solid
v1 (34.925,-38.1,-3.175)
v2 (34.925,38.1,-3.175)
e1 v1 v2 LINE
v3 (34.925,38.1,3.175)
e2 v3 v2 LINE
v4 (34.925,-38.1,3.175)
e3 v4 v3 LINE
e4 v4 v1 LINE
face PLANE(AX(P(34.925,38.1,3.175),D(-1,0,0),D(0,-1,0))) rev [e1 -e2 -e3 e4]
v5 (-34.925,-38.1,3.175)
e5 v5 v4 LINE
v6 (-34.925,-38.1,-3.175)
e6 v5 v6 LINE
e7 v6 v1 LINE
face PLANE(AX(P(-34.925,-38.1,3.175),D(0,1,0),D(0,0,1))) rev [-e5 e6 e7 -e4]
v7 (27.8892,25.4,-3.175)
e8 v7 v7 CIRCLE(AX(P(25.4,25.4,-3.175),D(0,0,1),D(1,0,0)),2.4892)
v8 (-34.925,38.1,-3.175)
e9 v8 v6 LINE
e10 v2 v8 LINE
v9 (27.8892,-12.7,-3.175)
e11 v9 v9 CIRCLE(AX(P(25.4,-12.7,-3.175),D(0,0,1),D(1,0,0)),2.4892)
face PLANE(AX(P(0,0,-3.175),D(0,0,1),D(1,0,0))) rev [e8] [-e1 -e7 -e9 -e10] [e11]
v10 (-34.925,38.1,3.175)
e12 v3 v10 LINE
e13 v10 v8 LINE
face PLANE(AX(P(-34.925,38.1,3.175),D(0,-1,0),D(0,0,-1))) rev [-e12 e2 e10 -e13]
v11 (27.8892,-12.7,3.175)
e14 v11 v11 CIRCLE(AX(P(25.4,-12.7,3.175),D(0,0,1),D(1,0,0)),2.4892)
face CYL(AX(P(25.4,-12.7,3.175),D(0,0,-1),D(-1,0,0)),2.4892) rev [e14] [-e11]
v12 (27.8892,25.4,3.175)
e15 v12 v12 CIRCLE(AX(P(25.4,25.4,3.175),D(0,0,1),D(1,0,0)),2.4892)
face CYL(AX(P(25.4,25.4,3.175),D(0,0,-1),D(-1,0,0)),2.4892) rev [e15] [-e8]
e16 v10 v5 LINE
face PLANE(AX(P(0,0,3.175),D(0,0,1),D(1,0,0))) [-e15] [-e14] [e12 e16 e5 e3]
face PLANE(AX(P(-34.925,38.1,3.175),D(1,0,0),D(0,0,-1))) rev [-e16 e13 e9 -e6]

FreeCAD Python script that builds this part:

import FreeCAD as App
import Part
import Sketcher
from FreeCAD import Vector
Q = App.Units.Quantity

doc = App.newDocument("Part")
body = doc.addObject("PartDesign::Body", "Body")

# Sketch on XY plane
sketch1 = body.newObject("Sketcher::SketchObject", "Sketch")
sketch1.AttachmentSupport = (doc.getObject("XY_Plane"), [""])
sketch1.MapMode = "FlatFace"
sketch1.addGeometry(Part.LineSegment(Vector(-34.9, 38.1, 0), Vector(-34.9, -38.1, 0)), False)
sketch1.addGeometry(Part.LineSegment(Vector(-34.9, -38.1, 0), Vector(34.9, -38.1, 0)), False)
sketch1.addGeometry(Part.LineSegment(Vector(34.9, -38.1, 0), Vector(34.9, 38.1, 0)), False)
sketch1.addGeometry(Part.LineSegment(Vector(34.9, 38.1, 0), Vector(-34.9, 38.1, 0)), False)
sketch1.addGeometry(Part.Circle(Vector(25.4, -12.7, 0), Vector(0, 0, 1), 2.5), False)
sketch1.addGeometry(Part.Circle(Vector(25.4, 25.4, 0), Vector(0, 0, 1), 2.5), False)
sketch1.addConstraint(Sketcher.Constraint("Coincident", 0, 2, 1, 1))
sketch1.addConstraint(Sketcher.Constraint("Coincident", 1, 2, 2, 1))
sketch1.addConstraint(Sketcher.Constraint("Coincident", 2, 2, 3, 1))
sketch1.addConstraint(Sketcher.Constraint("Coincident", 3, 2, 0, 1))
sketch1.addConstraint(Sketcher.Constraint("Vertical", 0))
sketch1.addConstraint(Sketcher.Constraint("Horizontal", 1))
sketch1.addConstraint(Sketcher.Constraint("Vertical", 2))
sketch1.addConstraint(Sketcher.Constraint("Horizontal", 3))
sketch1.addConstraint(Sketcher.Constraint("Equal", 4, 5))
sketch1.addConstraint(Sketcher.Constraint("Symmetric", 0, 2, 2, 2, -1, 1))
sketch1.addConstraint(Sketcher.Constraint("Vertical", 4, 3, 5, 3))
sketch1.addConstraint(Sketcher.Constraint("DistanceY", 0, 2, 0, 1, Q("3 in")))
sketch1.addConstraint(Sketcher.Constraint("Diameter", 4, Q("0.196 in")))
sketch1.addConstraint(Sketcher.Constraint("DistanceX", -1, 1, 4, 3, Q("1 in")))
sketch1.addConstraint(Sketcher.Constraint("DistanceY", -1, 1, 5, 3, Q("1 in")))
sketch1.addConstraint(Sketcher.Constraint("DistanceY", 0, 2, 4, 3, Q("1 in")))
sketch1.addConstraint(Sketcher.Constraint("DistanceX", 1, 1, 1, 2, Q("2.75 in")))
pad1 = body.newObject("PartDesign::Pad", "Pad")
pad1.Profile = sketch1
pad1.Length = Q("0.25 in")
pad1.Midplane = True

doc.recompute()
